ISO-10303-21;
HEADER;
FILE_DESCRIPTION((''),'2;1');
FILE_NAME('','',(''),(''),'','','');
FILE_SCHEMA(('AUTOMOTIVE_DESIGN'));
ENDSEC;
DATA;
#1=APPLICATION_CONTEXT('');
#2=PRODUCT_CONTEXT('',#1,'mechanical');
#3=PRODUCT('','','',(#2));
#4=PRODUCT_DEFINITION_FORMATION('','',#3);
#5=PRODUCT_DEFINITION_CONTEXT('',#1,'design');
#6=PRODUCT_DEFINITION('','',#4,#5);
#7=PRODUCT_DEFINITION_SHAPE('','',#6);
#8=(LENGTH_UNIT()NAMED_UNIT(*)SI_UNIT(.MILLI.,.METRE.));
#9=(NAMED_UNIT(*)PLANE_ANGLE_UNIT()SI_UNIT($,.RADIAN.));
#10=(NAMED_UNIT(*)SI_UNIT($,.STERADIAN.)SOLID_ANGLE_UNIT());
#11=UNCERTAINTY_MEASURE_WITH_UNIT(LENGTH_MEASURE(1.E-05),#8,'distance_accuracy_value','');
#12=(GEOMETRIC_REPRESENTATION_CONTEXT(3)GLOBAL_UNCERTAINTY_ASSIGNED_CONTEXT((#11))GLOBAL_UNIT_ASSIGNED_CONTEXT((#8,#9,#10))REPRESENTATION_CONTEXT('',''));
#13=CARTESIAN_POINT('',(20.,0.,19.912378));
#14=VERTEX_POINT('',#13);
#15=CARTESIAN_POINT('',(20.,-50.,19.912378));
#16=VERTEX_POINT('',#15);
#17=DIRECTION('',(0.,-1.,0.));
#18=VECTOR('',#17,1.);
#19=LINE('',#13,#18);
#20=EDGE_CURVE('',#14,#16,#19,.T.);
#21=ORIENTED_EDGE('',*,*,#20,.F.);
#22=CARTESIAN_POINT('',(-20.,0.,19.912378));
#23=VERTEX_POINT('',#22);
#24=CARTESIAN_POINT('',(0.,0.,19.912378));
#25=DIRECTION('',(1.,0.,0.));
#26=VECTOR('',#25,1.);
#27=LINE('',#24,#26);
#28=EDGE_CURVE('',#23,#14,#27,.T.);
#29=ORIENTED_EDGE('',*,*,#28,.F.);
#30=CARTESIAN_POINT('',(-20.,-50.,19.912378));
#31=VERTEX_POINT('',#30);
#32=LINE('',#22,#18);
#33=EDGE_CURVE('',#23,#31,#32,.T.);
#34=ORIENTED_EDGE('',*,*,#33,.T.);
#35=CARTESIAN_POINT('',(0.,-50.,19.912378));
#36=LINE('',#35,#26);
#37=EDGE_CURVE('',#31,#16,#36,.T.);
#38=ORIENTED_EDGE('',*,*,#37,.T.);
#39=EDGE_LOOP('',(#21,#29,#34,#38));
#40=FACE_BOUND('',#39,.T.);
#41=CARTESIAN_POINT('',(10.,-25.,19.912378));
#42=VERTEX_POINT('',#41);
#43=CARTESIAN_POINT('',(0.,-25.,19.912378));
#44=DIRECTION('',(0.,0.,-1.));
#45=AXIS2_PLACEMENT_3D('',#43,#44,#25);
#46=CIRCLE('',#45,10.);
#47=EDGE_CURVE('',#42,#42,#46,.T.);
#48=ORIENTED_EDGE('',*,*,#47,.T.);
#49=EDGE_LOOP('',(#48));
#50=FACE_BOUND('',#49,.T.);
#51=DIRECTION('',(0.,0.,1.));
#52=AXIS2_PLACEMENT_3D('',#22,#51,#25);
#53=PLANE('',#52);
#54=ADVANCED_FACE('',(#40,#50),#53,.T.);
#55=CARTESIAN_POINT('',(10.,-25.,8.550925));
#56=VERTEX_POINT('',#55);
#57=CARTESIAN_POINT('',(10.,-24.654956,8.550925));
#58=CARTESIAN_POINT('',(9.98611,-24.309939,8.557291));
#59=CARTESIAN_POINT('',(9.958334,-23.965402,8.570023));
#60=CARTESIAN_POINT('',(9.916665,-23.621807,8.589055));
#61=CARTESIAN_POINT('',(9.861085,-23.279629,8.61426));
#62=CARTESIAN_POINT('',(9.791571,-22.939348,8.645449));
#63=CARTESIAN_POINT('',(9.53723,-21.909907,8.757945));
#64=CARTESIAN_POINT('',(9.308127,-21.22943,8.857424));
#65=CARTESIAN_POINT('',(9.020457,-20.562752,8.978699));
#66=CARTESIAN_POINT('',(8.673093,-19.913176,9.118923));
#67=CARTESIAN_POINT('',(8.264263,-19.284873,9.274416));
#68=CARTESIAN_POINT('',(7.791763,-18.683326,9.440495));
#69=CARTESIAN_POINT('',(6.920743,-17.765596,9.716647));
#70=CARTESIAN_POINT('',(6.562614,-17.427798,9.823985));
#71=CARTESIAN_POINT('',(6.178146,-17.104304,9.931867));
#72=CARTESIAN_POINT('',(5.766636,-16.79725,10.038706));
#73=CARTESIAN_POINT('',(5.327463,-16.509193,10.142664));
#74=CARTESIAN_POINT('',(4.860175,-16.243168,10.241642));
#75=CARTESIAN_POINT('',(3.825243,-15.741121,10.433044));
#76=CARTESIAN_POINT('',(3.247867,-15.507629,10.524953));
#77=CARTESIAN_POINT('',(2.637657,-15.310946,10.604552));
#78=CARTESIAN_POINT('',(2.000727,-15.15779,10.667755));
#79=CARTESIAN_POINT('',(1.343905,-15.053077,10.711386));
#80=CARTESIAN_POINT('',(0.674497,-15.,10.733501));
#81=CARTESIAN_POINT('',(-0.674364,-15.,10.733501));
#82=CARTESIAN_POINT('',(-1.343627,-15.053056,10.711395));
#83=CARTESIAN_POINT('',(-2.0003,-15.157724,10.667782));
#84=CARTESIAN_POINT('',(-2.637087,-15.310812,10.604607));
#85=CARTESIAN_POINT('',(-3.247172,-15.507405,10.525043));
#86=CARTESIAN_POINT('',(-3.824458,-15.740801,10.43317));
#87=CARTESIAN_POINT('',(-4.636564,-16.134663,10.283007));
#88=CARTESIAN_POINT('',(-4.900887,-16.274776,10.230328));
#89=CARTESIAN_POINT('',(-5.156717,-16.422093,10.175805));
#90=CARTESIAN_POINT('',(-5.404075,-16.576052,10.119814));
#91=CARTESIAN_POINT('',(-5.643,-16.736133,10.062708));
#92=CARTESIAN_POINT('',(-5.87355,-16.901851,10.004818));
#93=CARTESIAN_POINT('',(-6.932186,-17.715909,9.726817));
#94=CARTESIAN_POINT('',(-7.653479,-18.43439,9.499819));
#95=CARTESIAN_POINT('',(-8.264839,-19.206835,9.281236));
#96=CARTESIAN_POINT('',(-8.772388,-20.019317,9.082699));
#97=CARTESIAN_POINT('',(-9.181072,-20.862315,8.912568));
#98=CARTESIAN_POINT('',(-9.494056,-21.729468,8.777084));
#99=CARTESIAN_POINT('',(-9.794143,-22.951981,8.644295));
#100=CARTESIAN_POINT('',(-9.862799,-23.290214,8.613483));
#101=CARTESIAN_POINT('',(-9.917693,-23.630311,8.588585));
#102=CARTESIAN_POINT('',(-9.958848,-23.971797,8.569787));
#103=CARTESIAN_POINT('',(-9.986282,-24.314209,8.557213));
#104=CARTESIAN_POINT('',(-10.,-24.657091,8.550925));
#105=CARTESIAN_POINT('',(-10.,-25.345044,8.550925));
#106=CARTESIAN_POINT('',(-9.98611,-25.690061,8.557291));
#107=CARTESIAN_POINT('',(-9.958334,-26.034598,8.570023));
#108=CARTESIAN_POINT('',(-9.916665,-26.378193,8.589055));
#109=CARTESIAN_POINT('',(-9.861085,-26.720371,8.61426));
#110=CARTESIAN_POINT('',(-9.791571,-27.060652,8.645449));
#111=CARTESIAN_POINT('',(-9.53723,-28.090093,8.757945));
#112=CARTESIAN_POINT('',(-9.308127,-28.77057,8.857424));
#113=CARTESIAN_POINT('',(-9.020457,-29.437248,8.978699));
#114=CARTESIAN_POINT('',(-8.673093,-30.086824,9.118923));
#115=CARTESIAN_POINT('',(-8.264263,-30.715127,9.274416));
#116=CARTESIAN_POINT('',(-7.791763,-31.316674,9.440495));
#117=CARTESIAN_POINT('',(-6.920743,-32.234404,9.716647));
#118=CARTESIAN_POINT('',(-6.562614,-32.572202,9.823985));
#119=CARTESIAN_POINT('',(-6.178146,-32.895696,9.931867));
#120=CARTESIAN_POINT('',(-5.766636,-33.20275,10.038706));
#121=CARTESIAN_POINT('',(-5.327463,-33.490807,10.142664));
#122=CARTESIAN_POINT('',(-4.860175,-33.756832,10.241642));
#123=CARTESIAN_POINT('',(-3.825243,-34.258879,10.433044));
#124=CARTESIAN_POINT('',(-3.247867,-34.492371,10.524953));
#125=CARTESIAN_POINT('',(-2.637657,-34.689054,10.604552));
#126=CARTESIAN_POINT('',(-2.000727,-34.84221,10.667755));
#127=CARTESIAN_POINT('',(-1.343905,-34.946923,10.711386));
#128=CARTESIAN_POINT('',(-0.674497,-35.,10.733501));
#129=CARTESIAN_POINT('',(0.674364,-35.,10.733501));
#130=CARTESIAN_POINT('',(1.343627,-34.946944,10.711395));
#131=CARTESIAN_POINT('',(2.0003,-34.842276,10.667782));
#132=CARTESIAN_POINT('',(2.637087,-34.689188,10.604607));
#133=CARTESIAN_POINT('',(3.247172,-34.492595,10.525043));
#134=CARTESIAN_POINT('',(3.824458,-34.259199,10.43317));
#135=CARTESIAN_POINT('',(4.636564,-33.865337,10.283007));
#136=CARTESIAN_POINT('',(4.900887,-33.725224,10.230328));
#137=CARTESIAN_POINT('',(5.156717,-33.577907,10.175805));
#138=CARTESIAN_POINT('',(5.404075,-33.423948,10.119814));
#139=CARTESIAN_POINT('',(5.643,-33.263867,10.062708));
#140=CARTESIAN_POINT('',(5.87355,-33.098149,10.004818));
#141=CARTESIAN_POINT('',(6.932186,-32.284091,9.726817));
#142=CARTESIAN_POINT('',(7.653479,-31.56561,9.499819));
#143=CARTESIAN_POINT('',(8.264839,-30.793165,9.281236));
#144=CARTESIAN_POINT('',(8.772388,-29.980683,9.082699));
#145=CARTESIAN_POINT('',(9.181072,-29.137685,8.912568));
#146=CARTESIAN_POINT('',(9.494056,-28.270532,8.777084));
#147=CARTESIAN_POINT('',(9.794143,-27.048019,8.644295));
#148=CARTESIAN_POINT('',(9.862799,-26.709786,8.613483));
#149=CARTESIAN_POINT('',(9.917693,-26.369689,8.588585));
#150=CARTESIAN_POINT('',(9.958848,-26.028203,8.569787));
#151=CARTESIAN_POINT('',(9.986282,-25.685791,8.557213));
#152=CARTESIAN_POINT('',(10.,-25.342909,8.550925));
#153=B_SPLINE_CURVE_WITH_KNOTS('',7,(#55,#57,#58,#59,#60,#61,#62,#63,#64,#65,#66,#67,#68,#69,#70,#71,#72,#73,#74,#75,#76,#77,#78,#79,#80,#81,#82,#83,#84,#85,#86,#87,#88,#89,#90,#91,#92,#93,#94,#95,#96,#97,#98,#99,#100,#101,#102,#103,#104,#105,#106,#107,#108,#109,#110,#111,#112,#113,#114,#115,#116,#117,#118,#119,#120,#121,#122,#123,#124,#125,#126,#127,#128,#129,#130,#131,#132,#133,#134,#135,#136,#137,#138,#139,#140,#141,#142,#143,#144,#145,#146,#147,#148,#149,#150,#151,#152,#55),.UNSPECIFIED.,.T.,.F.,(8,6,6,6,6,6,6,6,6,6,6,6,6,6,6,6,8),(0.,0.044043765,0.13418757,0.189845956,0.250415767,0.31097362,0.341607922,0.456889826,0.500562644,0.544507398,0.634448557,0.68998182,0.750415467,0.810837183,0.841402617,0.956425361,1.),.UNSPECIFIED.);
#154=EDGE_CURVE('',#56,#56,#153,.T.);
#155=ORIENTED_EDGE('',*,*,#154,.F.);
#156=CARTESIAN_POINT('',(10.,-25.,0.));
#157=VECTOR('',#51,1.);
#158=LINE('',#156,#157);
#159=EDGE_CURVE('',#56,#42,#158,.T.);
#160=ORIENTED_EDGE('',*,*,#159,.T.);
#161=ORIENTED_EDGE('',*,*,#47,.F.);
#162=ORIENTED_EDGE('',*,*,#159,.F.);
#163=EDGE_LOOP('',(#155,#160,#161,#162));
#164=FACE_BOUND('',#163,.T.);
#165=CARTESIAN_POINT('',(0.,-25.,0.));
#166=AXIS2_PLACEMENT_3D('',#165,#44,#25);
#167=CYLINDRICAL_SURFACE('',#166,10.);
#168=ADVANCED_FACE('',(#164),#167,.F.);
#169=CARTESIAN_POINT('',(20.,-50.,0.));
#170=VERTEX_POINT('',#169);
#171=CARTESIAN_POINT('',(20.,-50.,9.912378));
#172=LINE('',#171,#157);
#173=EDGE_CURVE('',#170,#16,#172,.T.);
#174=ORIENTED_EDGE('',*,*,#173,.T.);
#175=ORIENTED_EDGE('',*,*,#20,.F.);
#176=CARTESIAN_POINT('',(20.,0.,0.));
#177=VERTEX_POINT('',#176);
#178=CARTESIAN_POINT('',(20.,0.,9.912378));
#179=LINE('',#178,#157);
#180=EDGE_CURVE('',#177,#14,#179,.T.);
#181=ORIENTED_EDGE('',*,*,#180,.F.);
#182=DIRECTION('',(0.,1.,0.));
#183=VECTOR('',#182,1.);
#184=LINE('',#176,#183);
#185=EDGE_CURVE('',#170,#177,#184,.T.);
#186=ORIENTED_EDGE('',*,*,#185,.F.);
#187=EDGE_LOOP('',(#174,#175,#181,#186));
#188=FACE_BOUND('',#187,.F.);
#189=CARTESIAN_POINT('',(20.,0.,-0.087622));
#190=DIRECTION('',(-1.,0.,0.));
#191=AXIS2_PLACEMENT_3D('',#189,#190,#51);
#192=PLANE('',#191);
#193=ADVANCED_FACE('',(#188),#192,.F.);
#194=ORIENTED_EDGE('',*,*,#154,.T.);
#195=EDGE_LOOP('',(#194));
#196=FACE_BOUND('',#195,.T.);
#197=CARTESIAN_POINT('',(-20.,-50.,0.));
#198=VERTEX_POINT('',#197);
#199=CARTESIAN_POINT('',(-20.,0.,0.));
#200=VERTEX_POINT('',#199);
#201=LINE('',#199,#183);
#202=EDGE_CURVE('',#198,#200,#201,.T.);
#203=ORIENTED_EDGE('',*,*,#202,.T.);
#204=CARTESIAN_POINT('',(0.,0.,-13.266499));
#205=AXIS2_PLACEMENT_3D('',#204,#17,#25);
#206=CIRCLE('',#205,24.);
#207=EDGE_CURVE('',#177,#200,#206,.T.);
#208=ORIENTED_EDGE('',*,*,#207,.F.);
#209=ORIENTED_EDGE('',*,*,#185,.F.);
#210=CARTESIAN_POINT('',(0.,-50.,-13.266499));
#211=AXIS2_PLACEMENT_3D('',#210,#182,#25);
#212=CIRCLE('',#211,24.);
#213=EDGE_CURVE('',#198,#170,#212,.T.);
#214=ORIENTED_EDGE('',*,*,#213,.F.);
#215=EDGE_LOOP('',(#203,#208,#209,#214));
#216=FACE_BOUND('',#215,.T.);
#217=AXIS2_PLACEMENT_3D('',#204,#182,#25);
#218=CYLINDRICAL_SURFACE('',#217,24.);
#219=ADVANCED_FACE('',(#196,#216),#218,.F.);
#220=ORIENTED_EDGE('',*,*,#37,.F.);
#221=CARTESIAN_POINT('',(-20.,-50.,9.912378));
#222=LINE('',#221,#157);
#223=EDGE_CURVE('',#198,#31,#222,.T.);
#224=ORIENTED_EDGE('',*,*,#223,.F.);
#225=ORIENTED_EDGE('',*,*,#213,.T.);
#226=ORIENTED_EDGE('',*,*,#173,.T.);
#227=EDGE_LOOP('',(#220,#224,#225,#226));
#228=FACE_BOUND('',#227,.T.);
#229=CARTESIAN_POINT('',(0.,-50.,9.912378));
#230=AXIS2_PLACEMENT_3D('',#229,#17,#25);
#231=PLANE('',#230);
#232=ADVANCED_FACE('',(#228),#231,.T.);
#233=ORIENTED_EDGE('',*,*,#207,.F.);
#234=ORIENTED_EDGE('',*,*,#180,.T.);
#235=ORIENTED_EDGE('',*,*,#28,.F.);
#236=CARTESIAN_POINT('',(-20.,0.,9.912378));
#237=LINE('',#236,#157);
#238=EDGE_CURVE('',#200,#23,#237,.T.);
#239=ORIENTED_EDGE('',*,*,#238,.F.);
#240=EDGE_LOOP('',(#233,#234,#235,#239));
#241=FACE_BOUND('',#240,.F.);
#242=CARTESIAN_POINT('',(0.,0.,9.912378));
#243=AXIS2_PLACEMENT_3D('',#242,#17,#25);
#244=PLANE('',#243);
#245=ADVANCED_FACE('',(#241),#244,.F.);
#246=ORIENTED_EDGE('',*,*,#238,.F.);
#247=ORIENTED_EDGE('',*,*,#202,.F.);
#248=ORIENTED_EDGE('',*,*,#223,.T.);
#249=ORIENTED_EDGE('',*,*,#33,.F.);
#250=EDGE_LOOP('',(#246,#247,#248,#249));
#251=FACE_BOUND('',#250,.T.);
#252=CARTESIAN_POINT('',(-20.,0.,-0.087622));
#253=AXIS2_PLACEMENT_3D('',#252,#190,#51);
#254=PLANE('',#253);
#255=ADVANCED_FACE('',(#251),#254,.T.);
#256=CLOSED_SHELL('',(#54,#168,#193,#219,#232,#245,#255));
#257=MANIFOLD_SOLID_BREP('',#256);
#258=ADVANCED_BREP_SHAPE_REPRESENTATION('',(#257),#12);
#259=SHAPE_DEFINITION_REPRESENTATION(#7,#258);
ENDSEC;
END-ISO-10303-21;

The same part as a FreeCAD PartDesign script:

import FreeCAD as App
import Part
import Sketcher

doc = App.newDocument("Part")
params = doc.addObject("Spreadsheet::Sheet", "Params")
for row, (alias, value) in enumerate([
    ("sketch1_width", "40 mm"),
    ("sketch1_height", "20 mm"),
    ("pad1_length", "50 mm"),
    ("sketch2_diameter", "48 mm"),
    ("sketch3_diameter", "20 mm"),
], start=1):
    params.set(f"A{row}", alias)
    params.set(f"B{row}", "=" + value)
    params.setAlias(f"B{row}", alias)

body = doc.addObject("PartDesign::Body", "Body")

sketch1 = body.newObject("Sketcher::SketchObject", "Sketch")
sketch1.AttachmentSupport = (doc.getObject("XZ_Plane"), [""])
sketch1.MapMode = "FlatFace"
sketch1.addGeometry([
    Part.LineSegment(App.Vector(-20, 20, 0), App.Vector(-20, 0, 0)),
    Part.LineSegment(App.Vector(-20, 0, 0), App.Vector(20, 0, 0)),
    Part.LineSegment(App.Vector(20, 0, 0), App.Vector(20, 20, 0)),
    Part.LineSegment(App.Vector(20, 20, 0), App.Vector(-20, 20, 0)),
], False)
sketch1.addConstraint([
    Sketcher.Constraint("Coincident", 0, 2, 1, 1),
    Sketcher.Constraint("Coincident", 1, 2, 2, 1),
    Sketcher.Constraint("Coincident", 2, 2, 3, 1),
    Sketcher.Constraint("Coincident", 3, 2, 0, 1),
    Sketcher.Constraint("Vertical", 0),
    Sketcher.Constraint("Horizontal", 1),
    Sketcher.Constraint("Vertical", 2),
    Sketcher.Constraint("Horizontal", 3),
    Sketcher.Constraint("DistanceX", 1, 1, 1, 2, 40.0),
    Sketcher.Constraint("DistanceY", 0, 2, 0, 1, 20.0),
    Sketcher.Constraint("DistanceX", 0, 2, -1, 1, 20.0),
    Sketcher.Constraint("DistanceY", -1, 1, 2, 2, 19.912378),
])
sketch1.setExpression("Constraints[8]", "Params.sketch1_width")
sketch1.setExpression("Constraints[9]", "Params.sketch1_height")
pad1 = body.newObject("PartDesign::Pad", "Pad")
pad1.Profile = sketch1
pad1.setExpression("Length", "Params.pad1_length")

sketch2 = body.newObject("Sketcher::SketchObject", "Sketch001")
sketch2.AttachmentSupport = (doc.getObject("XZ_Plane"), [""])
sketch2.MapMode = "FlatFace"
sketch2.addGeometry(Part.Circle(App.Vector(0, -13, 0), App.Vector(0, 0, 1), 24), False)
sketch2.addConstraint([
    Sketcher.Constraint("PointOnObject", 0, 3, -2),
    Sketcher.Constraint("Diameter", 0, 48.0),
    Sketcher.Constraint("DistanceY", 0, 3, -1, 1, 13.266499),
])
sketch2.setExpression("Constraints[1]", "Params.sketch2_diameter")
pocket1 = body.newObject("PartDesign::Pocket", "Pocket")
pocket1.Profile = sketch2
pocket1.Type = "ThroughAll"
pocket1.Reversed = True

sketch3 = body.newObject("Sketcher::SketchObject", "Sketch002")
sketch3.AttachmentSupport = (doc.getObject("XY_Plane"), [""])
sketch3.MapMode = "FlatFace"
sketch3.addGeometry(Part.Circle(App.Vector(0, -25, 0), App.Vector(0, 0, 1), 10), False)
sketch3.addConstraint([
    Sketcher.Constraint("PointOnObject", 0, 3, -2),
    Sketcher.Constraint("Diameter", 0, 20.0),
    Sketcher.Constraint("DistanceY", 0, 3, -1, 1, 25.0),
])
sketch3.setExpression("Constraints[1]", "Params.sketch3_diameter")
pocket2 = body.newObject("PartDesign::Pocket", "Pocket001")
pocket2.Profile = sketch3
pocket2.Type = "ThroughAll"
pocket2.Reversed = True

doc.recompute()
